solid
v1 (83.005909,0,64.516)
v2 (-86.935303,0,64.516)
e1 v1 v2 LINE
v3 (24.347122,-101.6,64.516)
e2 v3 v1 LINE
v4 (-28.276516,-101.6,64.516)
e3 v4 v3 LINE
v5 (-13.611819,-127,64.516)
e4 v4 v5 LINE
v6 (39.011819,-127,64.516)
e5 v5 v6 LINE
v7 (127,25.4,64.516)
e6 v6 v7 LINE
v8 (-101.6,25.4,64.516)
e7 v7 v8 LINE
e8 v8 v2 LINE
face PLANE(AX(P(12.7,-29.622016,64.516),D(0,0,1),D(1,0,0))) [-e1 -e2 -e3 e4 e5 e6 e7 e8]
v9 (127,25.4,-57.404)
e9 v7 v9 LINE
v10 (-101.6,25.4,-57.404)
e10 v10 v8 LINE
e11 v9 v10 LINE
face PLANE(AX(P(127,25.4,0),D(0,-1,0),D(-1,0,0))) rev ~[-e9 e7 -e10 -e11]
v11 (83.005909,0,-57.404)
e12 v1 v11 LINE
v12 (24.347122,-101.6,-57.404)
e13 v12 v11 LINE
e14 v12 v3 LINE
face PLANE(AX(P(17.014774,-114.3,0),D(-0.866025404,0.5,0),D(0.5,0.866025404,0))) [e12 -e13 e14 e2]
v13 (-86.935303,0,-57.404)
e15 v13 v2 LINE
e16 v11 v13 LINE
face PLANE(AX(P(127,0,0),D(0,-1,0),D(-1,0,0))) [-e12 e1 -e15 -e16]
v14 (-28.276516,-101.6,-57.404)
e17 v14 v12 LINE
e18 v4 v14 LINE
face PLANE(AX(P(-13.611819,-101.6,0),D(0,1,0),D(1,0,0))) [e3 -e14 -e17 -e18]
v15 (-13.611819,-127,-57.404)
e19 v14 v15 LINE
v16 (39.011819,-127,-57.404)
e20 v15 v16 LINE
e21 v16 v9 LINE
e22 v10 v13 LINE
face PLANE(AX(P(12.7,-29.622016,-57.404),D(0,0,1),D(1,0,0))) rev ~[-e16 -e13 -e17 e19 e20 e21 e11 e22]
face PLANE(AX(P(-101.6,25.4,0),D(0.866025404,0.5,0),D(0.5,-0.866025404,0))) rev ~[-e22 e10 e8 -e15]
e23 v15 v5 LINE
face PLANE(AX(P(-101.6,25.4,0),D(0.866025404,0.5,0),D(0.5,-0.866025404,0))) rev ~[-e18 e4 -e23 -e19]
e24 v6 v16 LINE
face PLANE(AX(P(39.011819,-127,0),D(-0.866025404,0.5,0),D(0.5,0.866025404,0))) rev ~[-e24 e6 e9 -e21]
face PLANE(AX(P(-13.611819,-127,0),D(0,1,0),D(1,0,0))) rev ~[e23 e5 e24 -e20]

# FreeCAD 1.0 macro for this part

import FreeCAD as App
import Part
import Sketcher
Q = App.Units.Quantity


def faces_at(feature, points):
    """Names of the faces that lie closest to the given points."""
    faces = feature.Shape.Faces
    near = lambda p: min(range(len(faces)), key=lambda i: faces[i].distToShape(Part.Vertex(*p))[0])
    return sorted({f"Face{near(p) + 1}" for p in points})


def add_polygon(sketch, points):
    """Adds a closed chain of lines whose ends are joined by coincident constraints."""
    first, n = sketch.GeometryCount, len(points)
    for a, b in zip(points, points[1:] + points[:1]):
        sketch.addGeometry(Part.LineSegment(App.Vector(*a, 0), App.Vector(*b, 0)), False)
    for i in range(n):
        sketch.addConstraint(Sketcher.Constraint("Coincident", first + i, 2, first + (i + 1) % n, 1))

doc = App.newDocument("Part")
body = doc.addObject("PartDesign::Body", "Body")

# Sketch on XY plane
sketch1 = body.newObject("Sketcher::SketchObject", "Sketch")
sketch1.AttachmentSupport = (doc.getObject("XY_Plane"), [""])
sketch1.MapMode = "FlatFace"
add_polygon(sketch1, [(127, 25.4), (-101.6, 25.4), (-13.611819, -127), (39.011819, -127)])  # lines 0-3
sketch1.addConstraint([
    Sketcher.Constraint("Horizontal", 0),
    Sketcher.Constraint("Horizontal", 2),
    Sketcher.Constraint("Equal", 1, 3),
    Sketcher.Constraint("DistanceX", 0, 2, 0, 1, Q("9 in")),
    Sketcher.Constraint("DistanceX", 0, 2, -1, 1, Q("4 in")),
    Sketcher.Constraint("DistanceY", -1, 1, 0, 2, Q("1 in")),
    Sketcher.Constraint("DistanceY", 1, 2, -1, 1, Q("5 in")),
    Sketcher.Constraint("Angle", 1, Q("-60 deg")),
])
pad1 = body.newObject("PartDesign::Pad", "Pad")
pad1.Profile = sketch1
pad1.Type = "TwoLengths"
pad1.Length = Q("2.26 in")
pad1.Length2 = Q("2.54 in")
pad1.Reversed = True
doc.recompute()

thickness = body.newObject("PartDesign::Thickness", "Thickness")
thickness.Base = (pad1, faces_at(pad1, [(12.7, -50.8, 64.516), (12.7, -50.8, -57.404), (-57.606, -50.8, 3.556)]))
thickness.Value = Q("1 in")
thickness.Reversed = True
thickness.Join = "Arc"

doc.recompute()
